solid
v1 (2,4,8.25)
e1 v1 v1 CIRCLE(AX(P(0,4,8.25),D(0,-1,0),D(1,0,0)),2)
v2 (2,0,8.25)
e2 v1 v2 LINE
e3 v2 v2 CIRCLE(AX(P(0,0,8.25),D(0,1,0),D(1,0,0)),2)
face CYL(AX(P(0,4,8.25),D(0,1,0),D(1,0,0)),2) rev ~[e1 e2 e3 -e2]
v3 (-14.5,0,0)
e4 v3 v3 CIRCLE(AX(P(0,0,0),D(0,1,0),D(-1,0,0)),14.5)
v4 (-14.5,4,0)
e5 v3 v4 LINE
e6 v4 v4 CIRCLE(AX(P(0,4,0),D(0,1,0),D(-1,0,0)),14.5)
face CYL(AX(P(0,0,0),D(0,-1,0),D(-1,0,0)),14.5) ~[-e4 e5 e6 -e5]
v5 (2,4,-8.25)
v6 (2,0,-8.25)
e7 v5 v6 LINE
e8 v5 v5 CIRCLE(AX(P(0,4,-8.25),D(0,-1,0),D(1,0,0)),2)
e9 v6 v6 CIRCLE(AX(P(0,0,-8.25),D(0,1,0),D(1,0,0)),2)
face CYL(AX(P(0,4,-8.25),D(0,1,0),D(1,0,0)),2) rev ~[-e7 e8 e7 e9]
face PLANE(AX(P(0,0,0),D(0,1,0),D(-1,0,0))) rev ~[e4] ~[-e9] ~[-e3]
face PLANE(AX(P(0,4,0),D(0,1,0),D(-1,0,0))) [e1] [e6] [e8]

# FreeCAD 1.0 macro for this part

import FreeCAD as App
import Part
import Sketcher
Q = App.Units.Quantity

doc = App.newDocument("Part")
body = doc.addObject("PartDesign::Body", "Body")

# Sketch on XZ plane
sketch1 = body.newObject("Sketcher::SketchObject", "Sketch")
sketch1.AttachmentSupport = (doc.getObject("XZ_Plane"), [""])
sketch1.MapMode = "FlatFace"
sketch1.addGeometry(Part.Circle(App.Vector(0, 0, 0), App.Vector(0, 0, 1), 14), False)
sketch1.addConstraint([
    Sketcher.Constraint("Coincident", 0, 3, -1, 1),
    Sketcher.Constraint("Diameter", 0, Q("29 mm")),
])
pad1 = body.newObject("PartDesign::Pad", "Pad")
pad1.Profile = sketch1
pad1.Length = 4
pad1.Reversed = True

# Sketch on XZ plane
sketch2 = body.newObject("Sketcher::SketchObject", "Sketch001")
sketch2.AttachmentSupport = (doc.getObject("XZ_Plane"), [""])
sketch2.MapMode = "FlatFace"
sketch2.AttachmentOffset = App.Placement(App.Vector(0, 0, -4), App.Rotation())
sketch2.addGeometry([
    Part.Circle(App.Vector(0, -8.2, 0), App.Vector(0, 0, 1), 2),
    Part.Circle(App.Vector(0, 8.2, 0), App.Vector(0, 0, 1), 2),
], False)
sketch2.addConstraint([
    Sketcher.Constraint("Equal", 0, 1),
    Sketcher.Constraint("Symmetric", 0, 3, 1, 3, -1, 1),
    Sketcher.Constraint("PointOnObject", 0, 3, -2),
    Sketcher.Constraint("Diameter", 0, Q("4 mm")),
    Sketcher.Constraint("DistanceY", 0, 3, 1, 3, Q("16.5 mm")),
])
pocket1 = body.newObject("PartDesign::Pocket", "Pocket")
pocket1.Profile = sketch2
pocket1.Length = 4
pocket1.Reversed = True

doc.recompute()
